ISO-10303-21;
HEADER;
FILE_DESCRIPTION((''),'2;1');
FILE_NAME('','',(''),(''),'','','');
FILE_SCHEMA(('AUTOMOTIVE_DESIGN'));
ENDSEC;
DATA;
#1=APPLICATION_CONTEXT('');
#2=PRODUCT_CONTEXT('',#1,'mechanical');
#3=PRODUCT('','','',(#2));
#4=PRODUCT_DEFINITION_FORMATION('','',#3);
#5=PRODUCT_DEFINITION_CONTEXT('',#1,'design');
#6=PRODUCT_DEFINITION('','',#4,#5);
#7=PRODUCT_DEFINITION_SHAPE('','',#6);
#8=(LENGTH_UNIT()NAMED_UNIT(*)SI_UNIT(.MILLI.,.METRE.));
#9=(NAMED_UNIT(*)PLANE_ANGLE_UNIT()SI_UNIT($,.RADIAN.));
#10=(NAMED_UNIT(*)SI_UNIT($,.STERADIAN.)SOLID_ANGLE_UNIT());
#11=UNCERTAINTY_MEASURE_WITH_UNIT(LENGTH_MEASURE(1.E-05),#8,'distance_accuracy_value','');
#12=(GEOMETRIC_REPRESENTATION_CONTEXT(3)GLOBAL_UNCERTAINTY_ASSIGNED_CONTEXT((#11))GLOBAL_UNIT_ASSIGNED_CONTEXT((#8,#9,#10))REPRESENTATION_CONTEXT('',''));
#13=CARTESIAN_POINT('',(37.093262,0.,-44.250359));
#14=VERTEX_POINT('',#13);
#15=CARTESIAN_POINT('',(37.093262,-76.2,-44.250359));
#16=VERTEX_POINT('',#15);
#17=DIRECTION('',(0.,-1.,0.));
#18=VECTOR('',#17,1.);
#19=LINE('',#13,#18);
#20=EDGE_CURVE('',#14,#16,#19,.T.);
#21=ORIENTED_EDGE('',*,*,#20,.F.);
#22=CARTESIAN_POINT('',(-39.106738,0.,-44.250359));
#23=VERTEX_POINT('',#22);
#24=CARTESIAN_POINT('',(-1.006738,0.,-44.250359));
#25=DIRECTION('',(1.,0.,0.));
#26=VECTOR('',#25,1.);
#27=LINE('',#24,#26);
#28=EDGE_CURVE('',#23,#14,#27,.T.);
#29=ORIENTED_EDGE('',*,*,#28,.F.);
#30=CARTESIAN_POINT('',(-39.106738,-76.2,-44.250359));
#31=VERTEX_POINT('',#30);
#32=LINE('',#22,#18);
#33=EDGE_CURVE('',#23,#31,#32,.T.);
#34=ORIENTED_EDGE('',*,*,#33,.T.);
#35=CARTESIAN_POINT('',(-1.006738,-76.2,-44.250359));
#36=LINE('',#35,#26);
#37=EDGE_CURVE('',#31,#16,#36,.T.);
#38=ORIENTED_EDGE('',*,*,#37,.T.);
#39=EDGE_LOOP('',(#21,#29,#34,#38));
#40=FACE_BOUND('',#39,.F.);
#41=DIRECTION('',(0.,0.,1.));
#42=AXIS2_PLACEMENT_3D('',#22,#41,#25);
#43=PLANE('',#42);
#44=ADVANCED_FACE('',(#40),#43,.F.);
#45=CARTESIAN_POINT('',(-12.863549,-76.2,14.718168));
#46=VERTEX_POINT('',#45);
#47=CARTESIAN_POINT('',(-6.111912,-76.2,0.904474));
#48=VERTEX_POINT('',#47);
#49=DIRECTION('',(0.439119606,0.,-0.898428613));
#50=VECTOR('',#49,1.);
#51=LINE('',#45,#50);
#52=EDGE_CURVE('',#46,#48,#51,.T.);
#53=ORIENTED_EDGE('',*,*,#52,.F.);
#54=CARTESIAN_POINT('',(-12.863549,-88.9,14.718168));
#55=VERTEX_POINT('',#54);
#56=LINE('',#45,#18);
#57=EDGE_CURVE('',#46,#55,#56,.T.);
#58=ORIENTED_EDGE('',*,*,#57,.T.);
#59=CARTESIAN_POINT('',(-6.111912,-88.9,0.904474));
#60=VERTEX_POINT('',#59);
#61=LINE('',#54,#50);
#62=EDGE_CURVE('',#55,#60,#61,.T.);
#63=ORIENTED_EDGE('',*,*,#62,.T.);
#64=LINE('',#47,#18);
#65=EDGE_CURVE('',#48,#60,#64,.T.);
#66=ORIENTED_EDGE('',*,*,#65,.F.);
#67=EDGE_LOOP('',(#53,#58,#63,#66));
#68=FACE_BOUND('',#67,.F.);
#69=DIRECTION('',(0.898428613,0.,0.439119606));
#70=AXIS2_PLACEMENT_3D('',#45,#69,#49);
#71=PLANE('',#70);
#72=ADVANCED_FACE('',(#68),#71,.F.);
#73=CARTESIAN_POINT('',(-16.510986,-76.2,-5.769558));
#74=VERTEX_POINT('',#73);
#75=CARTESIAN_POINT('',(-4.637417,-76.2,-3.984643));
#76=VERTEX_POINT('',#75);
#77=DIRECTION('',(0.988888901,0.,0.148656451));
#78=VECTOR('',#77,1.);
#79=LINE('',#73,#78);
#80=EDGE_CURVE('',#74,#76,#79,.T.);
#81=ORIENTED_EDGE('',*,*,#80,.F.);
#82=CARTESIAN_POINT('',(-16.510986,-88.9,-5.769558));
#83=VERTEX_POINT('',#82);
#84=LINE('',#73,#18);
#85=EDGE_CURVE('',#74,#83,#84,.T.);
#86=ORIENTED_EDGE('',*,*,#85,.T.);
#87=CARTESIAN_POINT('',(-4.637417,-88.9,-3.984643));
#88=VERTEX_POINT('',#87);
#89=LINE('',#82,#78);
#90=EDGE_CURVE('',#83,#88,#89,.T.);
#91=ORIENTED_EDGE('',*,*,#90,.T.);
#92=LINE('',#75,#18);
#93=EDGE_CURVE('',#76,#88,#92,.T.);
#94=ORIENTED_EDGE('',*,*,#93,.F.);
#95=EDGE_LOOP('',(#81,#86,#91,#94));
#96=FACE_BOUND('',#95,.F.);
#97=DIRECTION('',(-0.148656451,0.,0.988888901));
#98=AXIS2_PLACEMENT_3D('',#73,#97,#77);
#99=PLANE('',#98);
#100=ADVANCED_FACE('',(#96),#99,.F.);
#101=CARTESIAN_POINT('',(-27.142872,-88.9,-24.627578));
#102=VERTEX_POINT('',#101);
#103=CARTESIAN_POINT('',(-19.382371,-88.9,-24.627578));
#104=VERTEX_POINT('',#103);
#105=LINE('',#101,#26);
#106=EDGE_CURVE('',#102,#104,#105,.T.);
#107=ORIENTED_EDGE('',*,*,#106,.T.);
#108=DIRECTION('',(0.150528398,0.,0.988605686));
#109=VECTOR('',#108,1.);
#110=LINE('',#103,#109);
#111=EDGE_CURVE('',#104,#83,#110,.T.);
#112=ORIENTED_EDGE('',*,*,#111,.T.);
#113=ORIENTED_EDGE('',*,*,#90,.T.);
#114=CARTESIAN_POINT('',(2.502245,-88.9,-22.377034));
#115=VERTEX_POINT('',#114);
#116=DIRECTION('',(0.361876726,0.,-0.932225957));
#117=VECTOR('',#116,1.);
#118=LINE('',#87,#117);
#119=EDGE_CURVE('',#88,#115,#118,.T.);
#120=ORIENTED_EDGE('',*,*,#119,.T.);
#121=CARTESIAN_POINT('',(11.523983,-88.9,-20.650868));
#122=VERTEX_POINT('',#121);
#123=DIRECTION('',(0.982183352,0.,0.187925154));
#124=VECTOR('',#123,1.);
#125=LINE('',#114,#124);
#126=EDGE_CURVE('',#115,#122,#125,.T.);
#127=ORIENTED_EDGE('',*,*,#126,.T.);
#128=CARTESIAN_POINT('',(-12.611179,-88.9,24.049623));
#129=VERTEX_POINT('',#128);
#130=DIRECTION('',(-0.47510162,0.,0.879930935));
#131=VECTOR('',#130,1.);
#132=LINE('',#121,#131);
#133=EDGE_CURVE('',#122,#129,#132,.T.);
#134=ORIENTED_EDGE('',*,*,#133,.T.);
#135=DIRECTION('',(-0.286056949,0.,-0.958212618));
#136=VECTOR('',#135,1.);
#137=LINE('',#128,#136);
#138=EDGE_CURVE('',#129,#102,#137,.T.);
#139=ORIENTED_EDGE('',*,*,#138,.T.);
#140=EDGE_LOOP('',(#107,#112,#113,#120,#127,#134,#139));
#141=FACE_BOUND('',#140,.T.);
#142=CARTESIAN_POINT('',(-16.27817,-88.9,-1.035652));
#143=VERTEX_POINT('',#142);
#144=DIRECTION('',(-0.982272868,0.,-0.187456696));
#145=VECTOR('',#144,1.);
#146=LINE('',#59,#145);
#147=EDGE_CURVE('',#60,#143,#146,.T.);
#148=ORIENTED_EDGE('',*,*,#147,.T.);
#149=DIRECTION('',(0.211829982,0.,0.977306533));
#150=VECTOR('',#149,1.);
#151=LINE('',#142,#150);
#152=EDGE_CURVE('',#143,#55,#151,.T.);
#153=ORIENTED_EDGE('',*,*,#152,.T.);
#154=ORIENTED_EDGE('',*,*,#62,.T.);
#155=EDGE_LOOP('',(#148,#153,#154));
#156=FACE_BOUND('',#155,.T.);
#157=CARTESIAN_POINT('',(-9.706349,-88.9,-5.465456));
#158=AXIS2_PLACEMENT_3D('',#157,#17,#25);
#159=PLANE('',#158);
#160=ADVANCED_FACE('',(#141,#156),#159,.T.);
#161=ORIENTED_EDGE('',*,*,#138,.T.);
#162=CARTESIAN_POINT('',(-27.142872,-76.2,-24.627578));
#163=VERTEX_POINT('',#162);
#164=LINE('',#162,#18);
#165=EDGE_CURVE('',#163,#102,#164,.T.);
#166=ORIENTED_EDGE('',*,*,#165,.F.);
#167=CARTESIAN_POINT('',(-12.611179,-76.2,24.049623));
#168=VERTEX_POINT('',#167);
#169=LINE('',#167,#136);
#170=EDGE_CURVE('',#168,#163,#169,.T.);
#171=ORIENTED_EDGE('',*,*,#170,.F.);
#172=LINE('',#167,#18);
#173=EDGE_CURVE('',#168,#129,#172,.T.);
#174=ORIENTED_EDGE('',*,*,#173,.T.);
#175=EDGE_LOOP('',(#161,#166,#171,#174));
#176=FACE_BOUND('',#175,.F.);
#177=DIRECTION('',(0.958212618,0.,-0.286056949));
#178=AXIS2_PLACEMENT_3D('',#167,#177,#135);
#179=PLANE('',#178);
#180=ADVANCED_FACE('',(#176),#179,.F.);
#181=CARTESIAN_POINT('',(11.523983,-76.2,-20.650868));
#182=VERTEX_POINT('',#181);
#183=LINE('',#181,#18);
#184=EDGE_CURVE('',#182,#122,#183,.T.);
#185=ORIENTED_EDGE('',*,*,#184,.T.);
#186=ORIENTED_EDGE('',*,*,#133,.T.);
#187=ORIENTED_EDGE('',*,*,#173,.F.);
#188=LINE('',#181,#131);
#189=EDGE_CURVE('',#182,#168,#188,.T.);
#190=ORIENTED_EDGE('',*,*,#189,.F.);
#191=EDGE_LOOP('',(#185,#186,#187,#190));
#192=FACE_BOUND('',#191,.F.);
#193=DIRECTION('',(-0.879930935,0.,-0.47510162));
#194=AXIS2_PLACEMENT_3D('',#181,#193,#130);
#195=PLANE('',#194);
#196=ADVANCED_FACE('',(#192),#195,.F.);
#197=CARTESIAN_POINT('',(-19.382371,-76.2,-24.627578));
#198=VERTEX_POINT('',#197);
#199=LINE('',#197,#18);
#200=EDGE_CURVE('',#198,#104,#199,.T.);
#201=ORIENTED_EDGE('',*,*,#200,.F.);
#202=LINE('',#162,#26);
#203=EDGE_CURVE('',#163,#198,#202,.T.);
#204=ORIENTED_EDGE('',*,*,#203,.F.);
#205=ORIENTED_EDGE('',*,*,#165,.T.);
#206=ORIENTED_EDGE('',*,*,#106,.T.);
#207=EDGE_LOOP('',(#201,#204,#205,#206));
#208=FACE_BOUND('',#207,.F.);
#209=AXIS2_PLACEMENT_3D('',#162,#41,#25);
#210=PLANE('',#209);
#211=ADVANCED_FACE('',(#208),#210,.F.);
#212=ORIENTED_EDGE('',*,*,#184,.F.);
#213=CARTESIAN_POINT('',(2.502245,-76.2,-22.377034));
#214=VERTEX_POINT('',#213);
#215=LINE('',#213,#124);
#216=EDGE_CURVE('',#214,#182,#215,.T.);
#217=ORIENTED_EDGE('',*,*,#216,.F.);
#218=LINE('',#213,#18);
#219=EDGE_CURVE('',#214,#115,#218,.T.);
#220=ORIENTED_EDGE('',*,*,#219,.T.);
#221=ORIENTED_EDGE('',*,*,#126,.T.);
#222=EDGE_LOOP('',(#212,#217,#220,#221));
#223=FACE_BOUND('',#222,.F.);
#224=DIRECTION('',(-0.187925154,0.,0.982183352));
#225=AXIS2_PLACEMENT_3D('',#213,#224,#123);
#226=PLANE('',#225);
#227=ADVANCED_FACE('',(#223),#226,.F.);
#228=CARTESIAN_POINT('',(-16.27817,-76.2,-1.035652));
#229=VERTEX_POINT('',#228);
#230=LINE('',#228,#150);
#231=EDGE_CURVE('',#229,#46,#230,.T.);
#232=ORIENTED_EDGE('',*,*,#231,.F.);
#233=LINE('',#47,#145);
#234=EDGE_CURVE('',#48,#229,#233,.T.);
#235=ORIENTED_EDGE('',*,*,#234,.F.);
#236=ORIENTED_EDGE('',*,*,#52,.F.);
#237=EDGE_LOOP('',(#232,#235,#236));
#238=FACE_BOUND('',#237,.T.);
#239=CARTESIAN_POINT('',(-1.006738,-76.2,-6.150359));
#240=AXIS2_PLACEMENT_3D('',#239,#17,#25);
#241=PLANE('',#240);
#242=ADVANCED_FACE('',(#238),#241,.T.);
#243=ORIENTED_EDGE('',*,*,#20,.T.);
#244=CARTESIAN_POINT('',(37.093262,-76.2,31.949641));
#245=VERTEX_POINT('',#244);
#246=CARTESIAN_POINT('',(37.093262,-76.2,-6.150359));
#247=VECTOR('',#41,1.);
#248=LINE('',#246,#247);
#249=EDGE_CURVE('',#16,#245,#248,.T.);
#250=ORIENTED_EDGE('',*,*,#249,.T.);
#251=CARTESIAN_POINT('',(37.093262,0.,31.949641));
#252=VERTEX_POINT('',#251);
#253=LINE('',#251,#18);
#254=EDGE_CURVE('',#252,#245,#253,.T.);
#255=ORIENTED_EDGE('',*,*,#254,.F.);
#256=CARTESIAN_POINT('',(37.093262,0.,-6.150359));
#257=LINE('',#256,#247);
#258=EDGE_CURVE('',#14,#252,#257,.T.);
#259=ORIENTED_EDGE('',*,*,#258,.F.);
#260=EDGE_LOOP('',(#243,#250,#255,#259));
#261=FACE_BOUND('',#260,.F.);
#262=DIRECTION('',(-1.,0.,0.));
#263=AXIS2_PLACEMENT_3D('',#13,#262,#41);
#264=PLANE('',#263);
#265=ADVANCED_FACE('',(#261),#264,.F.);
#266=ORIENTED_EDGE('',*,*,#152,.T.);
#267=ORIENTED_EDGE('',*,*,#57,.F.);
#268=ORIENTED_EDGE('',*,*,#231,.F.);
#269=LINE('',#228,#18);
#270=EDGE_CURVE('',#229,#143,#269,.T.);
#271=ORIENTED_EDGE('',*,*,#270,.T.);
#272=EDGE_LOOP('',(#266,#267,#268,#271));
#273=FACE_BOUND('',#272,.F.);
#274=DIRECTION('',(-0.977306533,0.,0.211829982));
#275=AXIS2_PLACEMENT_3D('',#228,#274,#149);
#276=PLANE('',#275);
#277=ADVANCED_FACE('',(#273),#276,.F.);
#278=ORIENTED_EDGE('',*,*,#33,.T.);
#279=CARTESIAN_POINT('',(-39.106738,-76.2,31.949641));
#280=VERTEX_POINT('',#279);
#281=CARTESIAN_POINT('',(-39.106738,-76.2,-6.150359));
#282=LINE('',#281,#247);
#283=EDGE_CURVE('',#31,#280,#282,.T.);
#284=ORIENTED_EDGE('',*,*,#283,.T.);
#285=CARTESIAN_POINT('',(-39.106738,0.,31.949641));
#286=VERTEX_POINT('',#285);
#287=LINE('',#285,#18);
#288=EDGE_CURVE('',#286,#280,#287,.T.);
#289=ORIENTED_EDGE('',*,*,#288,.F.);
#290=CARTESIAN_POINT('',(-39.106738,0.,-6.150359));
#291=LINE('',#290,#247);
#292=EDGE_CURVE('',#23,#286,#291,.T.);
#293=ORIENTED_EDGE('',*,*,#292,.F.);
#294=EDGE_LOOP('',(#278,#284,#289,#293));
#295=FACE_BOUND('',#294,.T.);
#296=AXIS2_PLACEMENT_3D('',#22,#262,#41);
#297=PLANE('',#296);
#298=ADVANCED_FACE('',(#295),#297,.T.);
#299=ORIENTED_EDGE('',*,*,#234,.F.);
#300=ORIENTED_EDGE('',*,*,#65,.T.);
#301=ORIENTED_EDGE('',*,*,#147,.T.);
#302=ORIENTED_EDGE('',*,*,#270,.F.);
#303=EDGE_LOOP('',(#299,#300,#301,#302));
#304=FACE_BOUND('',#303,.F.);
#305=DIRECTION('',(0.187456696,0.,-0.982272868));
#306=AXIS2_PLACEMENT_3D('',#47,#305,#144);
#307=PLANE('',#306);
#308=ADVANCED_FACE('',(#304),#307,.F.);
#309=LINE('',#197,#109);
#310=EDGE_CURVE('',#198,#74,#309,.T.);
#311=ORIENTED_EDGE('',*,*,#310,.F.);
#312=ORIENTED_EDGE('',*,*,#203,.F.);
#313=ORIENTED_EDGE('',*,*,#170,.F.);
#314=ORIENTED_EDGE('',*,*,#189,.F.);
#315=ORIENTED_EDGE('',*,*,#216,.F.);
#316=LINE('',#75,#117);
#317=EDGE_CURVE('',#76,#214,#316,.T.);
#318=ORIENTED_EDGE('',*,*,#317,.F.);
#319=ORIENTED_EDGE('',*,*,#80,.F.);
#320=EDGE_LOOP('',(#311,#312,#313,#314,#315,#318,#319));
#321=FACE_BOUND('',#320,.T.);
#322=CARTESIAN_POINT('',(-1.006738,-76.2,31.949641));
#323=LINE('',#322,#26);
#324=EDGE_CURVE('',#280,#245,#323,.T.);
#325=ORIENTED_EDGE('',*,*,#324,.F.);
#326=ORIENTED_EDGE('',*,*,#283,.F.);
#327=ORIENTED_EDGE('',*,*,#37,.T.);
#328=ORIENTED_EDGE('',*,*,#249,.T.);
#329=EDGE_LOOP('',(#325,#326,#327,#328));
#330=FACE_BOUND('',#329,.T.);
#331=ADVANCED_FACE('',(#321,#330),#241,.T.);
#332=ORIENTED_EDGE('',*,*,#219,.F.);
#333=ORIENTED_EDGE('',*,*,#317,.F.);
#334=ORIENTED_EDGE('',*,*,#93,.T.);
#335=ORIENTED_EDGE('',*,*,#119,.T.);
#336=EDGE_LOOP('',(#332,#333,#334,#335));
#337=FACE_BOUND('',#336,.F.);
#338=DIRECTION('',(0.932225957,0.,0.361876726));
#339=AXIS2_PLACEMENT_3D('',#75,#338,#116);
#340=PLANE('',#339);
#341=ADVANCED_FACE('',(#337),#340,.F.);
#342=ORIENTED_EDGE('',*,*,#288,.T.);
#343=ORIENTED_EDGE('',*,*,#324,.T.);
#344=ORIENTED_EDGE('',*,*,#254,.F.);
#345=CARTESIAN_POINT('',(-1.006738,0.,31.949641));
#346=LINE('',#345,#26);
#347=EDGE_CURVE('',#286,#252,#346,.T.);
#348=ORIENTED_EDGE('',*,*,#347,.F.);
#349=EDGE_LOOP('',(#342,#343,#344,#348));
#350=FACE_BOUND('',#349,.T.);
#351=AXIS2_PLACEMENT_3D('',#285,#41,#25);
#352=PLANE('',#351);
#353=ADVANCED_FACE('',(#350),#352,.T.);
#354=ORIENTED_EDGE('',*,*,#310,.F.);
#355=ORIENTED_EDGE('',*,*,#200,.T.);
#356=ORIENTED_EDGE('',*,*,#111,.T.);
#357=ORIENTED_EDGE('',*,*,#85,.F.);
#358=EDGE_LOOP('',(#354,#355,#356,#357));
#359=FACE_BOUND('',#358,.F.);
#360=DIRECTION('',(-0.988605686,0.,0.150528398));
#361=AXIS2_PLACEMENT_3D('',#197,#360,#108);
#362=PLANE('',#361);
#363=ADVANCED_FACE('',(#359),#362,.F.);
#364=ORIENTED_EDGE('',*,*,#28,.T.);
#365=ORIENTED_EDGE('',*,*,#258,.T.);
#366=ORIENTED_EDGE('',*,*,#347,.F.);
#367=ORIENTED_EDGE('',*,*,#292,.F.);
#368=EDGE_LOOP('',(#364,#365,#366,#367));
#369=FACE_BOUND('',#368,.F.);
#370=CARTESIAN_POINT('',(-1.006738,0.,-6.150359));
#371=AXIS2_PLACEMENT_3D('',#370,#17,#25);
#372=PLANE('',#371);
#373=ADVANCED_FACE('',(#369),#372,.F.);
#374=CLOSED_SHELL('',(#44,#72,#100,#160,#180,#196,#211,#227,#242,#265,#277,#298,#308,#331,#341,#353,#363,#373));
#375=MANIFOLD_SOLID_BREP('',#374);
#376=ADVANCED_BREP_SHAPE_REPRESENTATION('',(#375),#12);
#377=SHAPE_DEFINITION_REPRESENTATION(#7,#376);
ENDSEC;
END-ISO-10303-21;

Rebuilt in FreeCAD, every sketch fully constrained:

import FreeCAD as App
import Part
import Sketcher

V = App.Vector
Q = App.Units.Quantity

doc = App.newDocument("Part")
body = doc.addObject("PartDesign::Body", "Body")

# Sketch on XZ plane
sketch1 = doc.addObject("Sketcher::SketchObject", "Sketch")
body.addObject(sketch1)
sketch1.AttachmentSupport = (doc.XZ_Plane, [""])
sketch1.MapMode = "FlatFace"
sketch1.addGeometry([
    Part.LineSegment(V(-39, 32, 0), V(-39, -44, 0)),
    Part.LineSegment(V(-39, -44, 0), V(37, -44, 0)),
    Part.LineSegment(V(37, -44, 0), V(37, 32, 0)),
    Part.LineSegment(V(37, 32, 0), V(-39, 32, 0)),
], False)
sketch1.addConstraint([
    Sketcher.Constraint("Coincident", 0, 2, 1, 1),
    Sketcher.Constraint("Coincident", 1, 2, 2, 1),
    Sketcher.Constraint("Coincident", 2, 2, 3, 1),
    Sketcher.Constraint("Coincident", 3, 2, 0, 1),
    Sketcher.Constraint("Vertical", 0),
    Sketcher.Constraint("Horizontal", 1),
    Sketcher.Constraint("Vertical", 2),
    Sketcher.Constraint("Horizontal", 3),
    Sketcher.Constraint("Equal", 3, 0),
    Sketcher.Constraint("DistanceX", 1, 1, 1, 2, Q("3 in")),
    Sketcher.Constraint("DistanceY", 0, 2, -1, 1, 44.250359),
    Sketcher.Constraint("DistanceX", 0, 2, -1, 1, 39.106738),
])
pad1 = doc.addObject("PartDesign::Pad", "Pad")
body.addObject(pad1)
pad1.Profile = sketch1
pad1.Length = Q("3 in")

# Sketch on XZ plane
sketch2 = doc.addObject("Sketcher::SketchObject", "Sketch001")
body.addObject(sketch2)
sketch2.AttachmentSupport = (doc.XZ_Plane, [""])
sketch2.MapMode = "FlatFace"
sketch2.AttachmentOffset = App.Placement(V(0, 0, 3 * 25.4), App.Rotation())
sketch2.addGeometry([
    Part.LineSegment(V(-13, 24, 0), V(-27, -25, 0)),  # 0
    Part.LineSegment(V(-27, -25, 0), V(-19, -25, 0)),  # 1
    Part.LineSegment(V(-19, -25, 0), V(-17, -6, 0)),  # 2
    Part.LineSegment(V(-17, -6, 0), V(-5, -4, 0)),  # 3
    Part.LineSegment(V(-5, -4, 0), V(3, -22, 0)),  # 4
    Part.LineSegment(V(3, -22, 0), V(12, -21, 0)),  # 5
    Part.LineSegment(V(12, -21, 0), V(-13, 24, 0)),  # 6
    Part.LineSegment(V(-13, 15, 0), V(-6, 1, 0)),  # 7
    Part.LineSegment(V(-6, 1, 0), V(-16, -1, 0)),  # 8
    Part.LineSegment(V(-16, -1, 0), V(-13, 15, 0)),  # 9
], False)
sketch2.addConstraint([
    Sketcher.Constraint("Coincident", 0, 2, 1, 1),
    Sketcher.Constraint("Coincident", 1, 2, 2, 1),
    Sketcher.Constraint("Coincident", 2, 2, 3, 1),
    Sketcher.Constraint("Coincident", 3, 2, 4, 1),
    Sketcher.Constraint("Coincident", 4, 2, 5, 1),
    Sketcher.Constraint("Coincident", 5, 2, 6, 1),
    Sketcher.Constraint("Coincident", 6, 2, 0, 1),
    Sketcher.Constraint("Coincident", 7, 2, 8, 1),
    Sketcher.Constraint("Coincident", 8, 2, 9, 1),
    Sketcher.Constraint("Coincident", 9, 2, 7, 1),
    Sketcher.Constraint("Horizontal", 1),
    Sketcher.Constraint("Equal", 0, 6),
    Sketcher.Constraint("Distance", 0, Q("2 in")),
    Sketcher.Constraint("DistanceX", 1, 1, 1, 2, 7.760501),
    Sketcher.Constraint("DistanceX", -1, 1, 5, 2, Q("0.4537001 in")),
    Sketcher.Constraint("DistanceX", 2, 2, 9, 2, Q("0.1435999 in")),
    Sketcher.Constraint("DistanceX", 3, 2, 5, 2, 16.1614),
    Sketcher.Constraint("DistanceY", 1, 2, 6, 2, 48.677201),
    Sketcher.Constraint("DistanceX", 1, 2, 8, 2, 3.104201),
    Sketcher.Constraint("Distance", 2, 19.075371),
    Sketcher.Constraint("Distance", 3, 12.00698),
    Sketcher.Constraint("Distance", 4, 19.729542),
    Sketcher.Constraint("Distance", 5, 9.185391),
    Sketcher.Constraint("Distance", 8, 10.349729),
    Sketcher.Constraint("Distance", 9, 16.11963),
    Sketcher.Constraint("DistanceY", 0, 2, -1, 1, 24.627578),
    Sketcher.Constraint("DistanceX", 1, 2, -1, 1, 19.382371),
    Sketcher.Constraint("DistanceX", 9, 2, -1, 1, 12.863549),
    Sketcher.Constraint("DistanceY", 7, 2, 6, 2, 23.145149),
    Sketcher.Constraint("DistanceY", 3, 2, 8, 2, 2.948991),
])
pad2 = doc.addObject("PartDesign::Pad", "Pad001")
body.addObject(pad2)
pad2.Profile = sketch2
pad2.Length = Q("0.5 in")

doc.recompute()
